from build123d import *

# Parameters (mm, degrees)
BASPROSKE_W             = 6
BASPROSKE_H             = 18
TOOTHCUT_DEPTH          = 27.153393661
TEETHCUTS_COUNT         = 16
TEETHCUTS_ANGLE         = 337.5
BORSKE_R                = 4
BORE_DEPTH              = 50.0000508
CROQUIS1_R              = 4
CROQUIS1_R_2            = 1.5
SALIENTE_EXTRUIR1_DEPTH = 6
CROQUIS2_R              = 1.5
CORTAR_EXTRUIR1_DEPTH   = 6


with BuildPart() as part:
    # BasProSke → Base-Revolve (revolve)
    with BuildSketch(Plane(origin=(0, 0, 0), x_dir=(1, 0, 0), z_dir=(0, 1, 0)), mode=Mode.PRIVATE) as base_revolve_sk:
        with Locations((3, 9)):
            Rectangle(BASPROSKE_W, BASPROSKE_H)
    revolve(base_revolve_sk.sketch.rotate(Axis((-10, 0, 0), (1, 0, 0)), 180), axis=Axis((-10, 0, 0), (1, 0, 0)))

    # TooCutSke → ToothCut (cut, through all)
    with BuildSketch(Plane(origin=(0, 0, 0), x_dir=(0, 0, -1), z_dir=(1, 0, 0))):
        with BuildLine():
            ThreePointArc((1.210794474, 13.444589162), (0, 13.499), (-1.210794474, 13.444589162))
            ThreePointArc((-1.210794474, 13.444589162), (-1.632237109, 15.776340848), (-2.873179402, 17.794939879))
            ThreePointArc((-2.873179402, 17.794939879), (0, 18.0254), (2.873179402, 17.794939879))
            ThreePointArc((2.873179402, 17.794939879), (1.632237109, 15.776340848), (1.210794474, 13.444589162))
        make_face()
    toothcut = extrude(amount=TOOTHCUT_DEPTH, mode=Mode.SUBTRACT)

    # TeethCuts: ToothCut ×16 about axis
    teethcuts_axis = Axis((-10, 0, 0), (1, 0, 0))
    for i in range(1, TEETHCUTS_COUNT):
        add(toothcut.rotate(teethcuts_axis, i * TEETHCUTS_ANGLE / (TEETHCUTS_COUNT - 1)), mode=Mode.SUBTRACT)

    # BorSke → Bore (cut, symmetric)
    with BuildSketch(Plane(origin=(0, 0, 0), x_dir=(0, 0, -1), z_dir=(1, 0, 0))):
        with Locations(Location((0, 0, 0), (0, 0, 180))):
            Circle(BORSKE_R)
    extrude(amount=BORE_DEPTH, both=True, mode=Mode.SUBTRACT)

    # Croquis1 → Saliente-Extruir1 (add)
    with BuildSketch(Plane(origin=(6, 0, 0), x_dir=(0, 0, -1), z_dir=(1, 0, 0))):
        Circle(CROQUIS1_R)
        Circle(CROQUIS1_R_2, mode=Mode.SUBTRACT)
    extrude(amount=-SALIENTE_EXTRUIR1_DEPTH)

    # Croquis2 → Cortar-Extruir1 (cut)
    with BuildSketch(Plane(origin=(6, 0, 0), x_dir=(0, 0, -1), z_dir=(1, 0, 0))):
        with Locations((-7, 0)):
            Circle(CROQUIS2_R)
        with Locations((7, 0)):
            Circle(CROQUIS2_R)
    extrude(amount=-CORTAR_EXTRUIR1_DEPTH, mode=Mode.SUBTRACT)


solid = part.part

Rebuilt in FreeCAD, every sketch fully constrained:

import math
import FreeCAD as App
import Part
import Sketcher
from FreeCAD import Vector
Q = App.Units.Quantity


def add_polygon(sketch, points):
    """Adds a closed chain of lines whose ends are joined by coincident constraints."""
    first, n = sketch.GeometryCount, len(points)
    for a, b in zip(points, points[1:] + points[:1]):
        sketch.addGeometry(Part.LineSegment(App.Vector(*a, 0), App.Vector(*b, 0)), False)
    for i in range(n):
        sketch.addConstraint(Sketcher.Constraint("Coincident", first + i, 2, first + (i + 1) % n, 1))

doc = App.newDocument("Part")
body = doc.addObject("PartDesign::Body", "Body")

sketch1 = doc.addObject("Sketcher::SketchObject", "Sketch")
body.addObject(sketch1)
sketch1.AttachmentSupport = (doc.XZ_Plane, [""])
sketch1.MapMode = "FlatFace"
add_polygon(sketch1, [(0, -18), (0, 0), (6, 0), (6, -18)])
sketch1.addConstraint(Sketcher.Constraint("Vertical", 0))
sketch1.addConstraint(Sketcher.Constraint("Horizontal", 1))
sketch1.addConstraint(Sketcher.Constraint("Vertical", 2))
sketch1.addConstraint(Sketcher.Constraint("Horizontal", 3))
sketch1.addConstraint(Sketcher.Constraint("Coincident", 0, 2, -1, 1))
sketch1.addConstraint(Sketcher.Constraint("DistanceX", 1, 1, 1, 2, Q("6 mm")))
sketch1.addConstraint(Sketcher.Constraint("DistanceY", 0, 1, 0, 2, Q("18 mm")))
revolution = doc.addObject("PartDesign::Revolution", "Revolution")
body.addObject(revolution)
revolution.Profile = sketch1
revolution.ReferenceAxis = (sketch1, ["H_Axis"])
revolution.Angle = 360

sketch2 = doc.addObject("Sketcher::SketchObject", "Sketch001")
body.addObject(sketch2)
sketch2.AttachmentSupport = (doc.YZ_Plane, [""])
sketch2.MapMode = "FlatFace"
sketch2.addGeometry(Part.ArcOfCircle(Part.Circle(Vector(0, 0, 0), Vector(0, 0, 1), 13.5), math.radians(-5.15), math.radians(5.15)), False)
sketch2.addGeometry(Part.ArcOfCircle(Part.Circle(Vector(13.5, -7.6, 0), Vector(0, 0, 1), 6.4), math.radians(48), math.radians(90)), False)
sketch2.addGeometry(Part.ArcOfCircle(Part.Circle(Vector(0, 0, 0), Vector(0, 0, 1), 18), math.radians(-9.17), math.radians(9.17)), False)
sketch2.addGeometry(Part.ArcOfCircle(Part.Circle(Vector(13.5, 7.6, 0), Vector(0, 0, 1), 6.4), math.radians(-90), math.radians(-48)), False)
sketch2.addConstraint(Sketcher.Constraint("Coincident", 0, 1, 1, 2))
sketch2.addConstraint(Sketcher.Constraint("Coincident", 1, 1, 2, 1))
sketch2.addConstraint(Sketcher.Constraint("Coincident", 2, 2, 3, 2))
sketch2.addConstraint(Sketcher.Constraint("Coincident", 3, 1, 0, 2))
sketch2.addConstraint(Sketcher.Constraint("Coincident", 0, 3, -1, 1))
sketch2.addConstraint(Sketcher.Constraint("Coincident", 2, 3, -1, 1))
sketch2.addConstraint(Sketcher.Constraint("Equal", 1, 3))
sketch2.addConstraint(Sketcher.Constraint("Symmetric", 1, 3, 3, 3, -1))
sketch2.addConstraint(Sketcher.Constraint("Radius", 1, Q("6.4 mm")))
sketch2.addConstraint(Sketcher.Constraint("Radius", 0, Q("13.499 mm")))
sketch2.addConstraint(Sketcher.Constraint("Radius", 2, Q("18.0254 mm")))
sketch2.addConstraint(Sketcher.Constraint("DistanceX", 1, 3, 1, 1, Q("4.303098 mm")))
sketch2.addConstraint(Sketcher.Constraint("DistanceY", 1, 1, 3, 3, Q("10.483799 mm")))
pocket1 = doc.addObject("PartDesign::Pocket", "Pocket")
body.addObject(pocket1)
pocket1.Profile = sketch2
pocket1.Type = "ThroughAll"
pocket1.Reversed = True
doc.recompute()

polarpattern = doc.addObject("PartDesign::PolarPattern", "PolarPattern")
body.addObject(polarpattern)
polarpattern.Originals = [pocket1]
polarpattern.Axis = (doc.X_Axis, [""])
polarpattern.Angle = 360
polarpattern.Occurrences = 16
body.Tip = polarpattern

sketch3 = doc.addObject("Sketcher::SketchObject", "Sketch002")
body.addObject(sketch3)
sketch3.AttachmentSupport = (doc.YZ_Plane, [""])
sketch3.MapMode = "FlatFace"
sketch3.addGeometry(Part.Circle(Vector(0, 0, 0), Vector(0, 0, 1), 4), False)
sketch3.addConstraint(Sketcher.Constraint("Coincident", 0, 3, -1, 1))
sketch3.addConstraint(Sketcher.Constraint("Diameter", 0, Q("8 mm")))
pocket2 = doc.addObject("PartDesign::Pocket", "Pocket001")
body.addObject(pocket2)
pocket2.Profile = sketch3
pocket2.Length = 100.000102
pocket2.Midplane = True

sketch4 = doc.addObject("Sketcher::SketchObject", "Sketch003")
body.addObject(sketch4)
sketch4.AttachmentSupport = (doc.YZ_Plane, [""])
sketch4.MapMode = "FlatFace"
sketch4.AttachmentOffset = App.Placement(Vector(0, 0, 6), App.Rotation())
sketch4.addGeometry(Part.Circle(Vector(0, 0, 0), Vector(0, 0, 1), 4), False)
sketch4.addGeometry(Part.Circle(Vector(0, 0, 0), Vector(0, 0, 1), 1.5), False)
sketch4.addConstraint(Sketcher.Constraint("Coincident", 0, 3, -1, 1))
sketch4.addConstraint(Sketcher.Constraint("Coincident", 1, 3, -1, 1))
sketch4.addConstraint(Sketcher.Constraint("Diameter", 0, Q("8 mm")))
sketch4.addConstraint(Sketcher.Constraint("Diameter", 1, Q("3 mm")))
pad1 = doc.addObject("PartDesign::Pad", "Pad")
body.addObject(pad1)
pad1.Profile = sketch4
pad1.Length = 6
pad1.Reversed = True

sketch5 = doc.addObject("Sketcher::SketchObject", "Sketch004")
body.addObject(sketch5)
sketch5.AttachmentSupport = (doc.YZ_Plane, [""])
sketch5.MapMode = "FlatFace"
sketch5.AttachmentOffset = App.Placement(Vector(0, 0, 6), App.Rotation())
sketch5.addGeometry(Part.Circle(Vector(0, 7, 0), Vector(0, 0, 1), 1.5), False)
sketch5.addGeometry(Part.Circle(Vector(0, -7, 0), Vector(0, 0, 1), 1.5), False)
sketch5.addConstraint(Sketcher.Constraint("Equal", 0, 1))
sketch5.addConstraint(Sketcher.Constraint("Symmetric", 0, 3, 1, 3, -1, 1))
sketch5.addConstraint(Sketcher.Constraint("PointOnObject", 0, 3, -2))
sketch5.addConstraint(Sketcher.Constraint("Diameter", 0, Q("3 mm")))
sketch5.addConstraint(Sketcher.Constraint("DistanceY", -1, 1, 0, 3, Q("7 mm")))
pocket3 = doc.addObject("PartDesign::Pocket", "Pocket002")
body.addObject(pocket3)
pocket3.Profile = sketch5
pocket3.Length = 6

doc.recompute()
